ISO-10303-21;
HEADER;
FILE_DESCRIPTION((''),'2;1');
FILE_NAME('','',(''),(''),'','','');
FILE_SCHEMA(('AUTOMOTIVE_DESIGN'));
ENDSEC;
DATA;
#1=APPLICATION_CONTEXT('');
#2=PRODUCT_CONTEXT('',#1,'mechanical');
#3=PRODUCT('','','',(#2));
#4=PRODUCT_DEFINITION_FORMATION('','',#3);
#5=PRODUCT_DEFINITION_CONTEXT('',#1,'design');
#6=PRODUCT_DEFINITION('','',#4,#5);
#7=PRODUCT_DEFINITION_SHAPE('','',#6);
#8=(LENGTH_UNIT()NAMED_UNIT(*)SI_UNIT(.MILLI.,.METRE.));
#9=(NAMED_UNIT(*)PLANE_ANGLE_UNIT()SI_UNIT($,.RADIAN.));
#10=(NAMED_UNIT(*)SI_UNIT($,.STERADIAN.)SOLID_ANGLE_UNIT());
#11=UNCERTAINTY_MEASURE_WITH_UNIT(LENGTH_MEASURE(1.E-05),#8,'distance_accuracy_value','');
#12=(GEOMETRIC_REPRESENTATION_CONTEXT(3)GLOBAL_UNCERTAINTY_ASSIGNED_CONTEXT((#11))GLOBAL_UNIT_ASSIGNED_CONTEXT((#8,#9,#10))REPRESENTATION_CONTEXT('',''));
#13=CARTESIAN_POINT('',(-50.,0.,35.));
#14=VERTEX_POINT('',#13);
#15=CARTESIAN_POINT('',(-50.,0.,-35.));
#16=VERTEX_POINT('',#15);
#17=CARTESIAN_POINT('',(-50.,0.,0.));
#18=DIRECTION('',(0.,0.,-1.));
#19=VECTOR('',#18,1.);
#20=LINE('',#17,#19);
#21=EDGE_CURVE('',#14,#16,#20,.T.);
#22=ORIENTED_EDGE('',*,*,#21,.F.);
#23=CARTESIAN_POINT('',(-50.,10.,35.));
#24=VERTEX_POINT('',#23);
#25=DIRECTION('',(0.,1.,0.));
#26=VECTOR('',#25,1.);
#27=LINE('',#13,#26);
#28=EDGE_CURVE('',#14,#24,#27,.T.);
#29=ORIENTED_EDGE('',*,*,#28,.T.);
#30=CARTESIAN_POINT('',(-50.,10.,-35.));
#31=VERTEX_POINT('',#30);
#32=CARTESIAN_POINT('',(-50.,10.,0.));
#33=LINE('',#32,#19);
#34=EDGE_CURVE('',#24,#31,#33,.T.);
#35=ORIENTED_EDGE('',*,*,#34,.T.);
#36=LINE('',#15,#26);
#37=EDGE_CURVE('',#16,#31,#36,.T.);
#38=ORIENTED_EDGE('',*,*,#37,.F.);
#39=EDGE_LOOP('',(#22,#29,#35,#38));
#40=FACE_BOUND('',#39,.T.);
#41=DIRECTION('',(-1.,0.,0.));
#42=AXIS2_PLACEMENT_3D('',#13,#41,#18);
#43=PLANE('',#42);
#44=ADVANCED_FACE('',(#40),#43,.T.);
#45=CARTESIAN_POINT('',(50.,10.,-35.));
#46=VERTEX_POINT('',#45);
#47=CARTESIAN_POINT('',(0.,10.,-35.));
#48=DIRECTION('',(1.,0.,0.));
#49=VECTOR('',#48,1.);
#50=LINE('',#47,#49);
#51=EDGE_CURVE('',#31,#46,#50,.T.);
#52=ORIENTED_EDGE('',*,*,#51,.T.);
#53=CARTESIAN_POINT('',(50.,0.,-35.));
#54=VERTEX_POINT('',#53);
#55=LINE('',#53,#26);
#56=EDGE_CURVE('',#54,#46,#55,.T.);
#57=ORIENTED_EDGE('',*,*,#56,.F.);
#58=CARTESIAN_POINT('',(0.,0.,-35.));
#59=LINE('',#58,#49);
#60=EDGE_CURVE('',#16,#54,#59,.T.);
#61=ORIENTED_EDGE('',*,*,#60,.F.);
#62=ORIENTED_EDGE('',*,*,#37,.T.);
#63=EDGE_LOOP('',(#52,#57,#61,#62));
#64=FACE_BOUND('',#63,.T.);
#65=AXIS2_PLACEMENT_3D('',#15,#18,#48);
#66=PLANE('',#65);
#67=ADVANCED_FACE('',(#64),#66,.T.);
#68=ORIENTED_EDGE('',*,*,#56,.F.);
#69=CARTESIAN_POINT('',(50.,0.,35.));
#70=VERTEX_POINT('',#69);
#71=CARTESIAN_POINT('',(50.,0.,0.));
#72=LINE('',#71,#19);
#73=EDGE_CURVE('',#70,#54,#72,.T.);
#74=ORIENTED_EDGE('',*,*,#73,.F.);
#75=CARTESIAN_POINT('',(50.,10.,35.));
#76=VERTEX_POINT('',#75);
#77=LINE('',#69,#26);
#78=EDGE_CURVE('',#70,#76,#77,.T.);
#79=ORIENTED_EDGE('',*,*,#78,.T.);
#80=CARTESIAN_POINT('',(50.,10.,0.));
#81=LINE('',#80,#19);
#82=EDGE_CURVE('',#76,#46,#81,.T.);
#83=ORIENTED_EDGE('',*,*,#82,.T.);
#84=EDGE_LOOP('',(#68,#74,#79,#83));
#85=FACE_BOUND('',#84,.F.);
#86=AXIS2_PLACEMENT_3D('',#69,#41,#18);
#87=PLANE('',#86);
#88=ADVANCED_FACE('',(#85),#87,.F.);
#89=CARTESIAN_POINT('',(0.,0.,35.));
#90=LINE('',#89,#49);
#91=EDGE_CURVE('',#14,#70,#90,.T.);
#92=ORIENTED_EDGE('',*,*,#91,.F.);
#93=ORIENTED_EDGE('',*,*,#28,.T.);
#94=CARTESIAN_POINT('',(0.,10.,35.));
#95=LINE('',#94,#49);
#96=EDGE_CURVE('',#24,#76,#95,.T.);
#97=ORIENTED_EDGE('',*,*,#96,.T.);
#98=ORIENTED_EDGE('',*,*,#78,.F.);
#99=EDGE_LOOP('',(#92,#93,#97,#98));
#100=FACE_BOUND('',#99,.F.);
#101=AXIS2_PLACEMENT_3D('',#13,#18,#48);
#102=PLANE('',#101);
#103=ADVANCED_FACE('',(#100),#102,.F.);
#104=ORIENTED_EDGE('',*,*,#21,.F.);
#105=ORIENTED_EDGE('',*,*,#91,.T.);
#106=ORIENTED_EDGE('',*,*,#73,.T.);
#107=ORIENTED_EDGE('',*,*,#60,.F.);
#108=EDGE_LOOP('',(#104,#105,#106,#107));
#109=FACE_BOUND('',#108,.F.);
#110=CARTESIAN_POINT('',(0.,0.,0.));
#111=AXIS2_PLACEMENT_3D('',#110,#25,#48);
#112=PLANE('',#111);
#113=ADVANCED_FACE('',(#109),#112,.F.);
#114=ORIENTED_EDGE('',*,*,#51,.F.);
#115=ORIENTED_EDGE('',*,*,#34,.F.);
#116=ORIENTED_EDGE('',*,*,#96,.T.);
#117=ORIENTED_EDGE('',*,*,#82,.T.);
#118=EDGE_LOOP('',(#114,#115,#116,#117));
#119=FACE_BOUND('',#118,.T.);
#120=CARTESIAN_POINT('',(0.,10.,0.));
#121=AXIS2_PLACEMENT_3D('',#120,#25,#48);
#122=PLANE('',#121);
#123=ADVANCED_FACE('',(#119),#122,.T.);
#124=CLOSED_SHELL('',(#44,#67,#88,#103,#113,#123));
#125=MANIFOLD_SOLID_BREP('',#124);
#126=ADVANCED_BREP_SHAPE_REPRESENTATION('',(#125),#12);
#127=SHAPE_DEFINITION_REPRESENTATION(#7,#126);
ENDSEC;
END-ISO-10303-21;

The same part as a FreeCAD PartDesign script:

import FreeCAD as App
import Part
import Sketcher
Q = App.Units.Quantity

doc = App.newDocument("Part")
body = doc.addObject("PartDesign::Body", "Body")

sketch1 = body.newObject("Sketcher::SketchObject", "Sketch")
sketch1.AttachmentSupport = (doc.getObject("XZ_Plane"), [""])
sketch1.MapMode = "FlatFace"
sketch1.addGeometry([
    Part.LineSegment(App.Vector(-50, -35, 0), App.Vector(-50, 35, 0)),
    Part.LineSegment(App.Vector(-50, 35, 0), App.Vector(50, 35, 0)),
    Part.LineSegment(App.Vector(50, 35, 0), App.Vector(50, -35, 0)),
    Part.LineSegment(App.Vector(50, -35, 0), App.Vector(-50, -35, 0)),
], False)
sketch1.addConstraint([
    Sketcher.Constraint("Coincident", 0, 2, 1, 1),
    Sketcher.Constraint("Coincident", 1, 2, 2, 1),
    Sketcher.Constraint("Coincident", 2, 2, 3, 1),
    Sketcher.Constraint("Coincident", 3, 2, 0, 1),
    Sketcher.Constraint("Vertical", 0),
    Sketcher.Constraint("Horizontal", 1),
    Sketcher.Constraint("Vertical", 2),
    Sketcher.Constraint("Horizontal", 3),
    Sketcher.Constraint("Symmetric", 0, 2, 2, 2, -1, 1),
    Sketcher.Constraint("DistanceX", 1, 1, 1, 2, Q("100 mm")),
    Sketcher.Constraint("DistanceY", 0, 1, 0, 2, Q("70 mm")),
])
pad1 = body.newObject("PartDesign::Pad", "Pad")
pad1.Profile = sketch1
pad1.Length = 10
pad1.Reversed = True

doc.recompute()
